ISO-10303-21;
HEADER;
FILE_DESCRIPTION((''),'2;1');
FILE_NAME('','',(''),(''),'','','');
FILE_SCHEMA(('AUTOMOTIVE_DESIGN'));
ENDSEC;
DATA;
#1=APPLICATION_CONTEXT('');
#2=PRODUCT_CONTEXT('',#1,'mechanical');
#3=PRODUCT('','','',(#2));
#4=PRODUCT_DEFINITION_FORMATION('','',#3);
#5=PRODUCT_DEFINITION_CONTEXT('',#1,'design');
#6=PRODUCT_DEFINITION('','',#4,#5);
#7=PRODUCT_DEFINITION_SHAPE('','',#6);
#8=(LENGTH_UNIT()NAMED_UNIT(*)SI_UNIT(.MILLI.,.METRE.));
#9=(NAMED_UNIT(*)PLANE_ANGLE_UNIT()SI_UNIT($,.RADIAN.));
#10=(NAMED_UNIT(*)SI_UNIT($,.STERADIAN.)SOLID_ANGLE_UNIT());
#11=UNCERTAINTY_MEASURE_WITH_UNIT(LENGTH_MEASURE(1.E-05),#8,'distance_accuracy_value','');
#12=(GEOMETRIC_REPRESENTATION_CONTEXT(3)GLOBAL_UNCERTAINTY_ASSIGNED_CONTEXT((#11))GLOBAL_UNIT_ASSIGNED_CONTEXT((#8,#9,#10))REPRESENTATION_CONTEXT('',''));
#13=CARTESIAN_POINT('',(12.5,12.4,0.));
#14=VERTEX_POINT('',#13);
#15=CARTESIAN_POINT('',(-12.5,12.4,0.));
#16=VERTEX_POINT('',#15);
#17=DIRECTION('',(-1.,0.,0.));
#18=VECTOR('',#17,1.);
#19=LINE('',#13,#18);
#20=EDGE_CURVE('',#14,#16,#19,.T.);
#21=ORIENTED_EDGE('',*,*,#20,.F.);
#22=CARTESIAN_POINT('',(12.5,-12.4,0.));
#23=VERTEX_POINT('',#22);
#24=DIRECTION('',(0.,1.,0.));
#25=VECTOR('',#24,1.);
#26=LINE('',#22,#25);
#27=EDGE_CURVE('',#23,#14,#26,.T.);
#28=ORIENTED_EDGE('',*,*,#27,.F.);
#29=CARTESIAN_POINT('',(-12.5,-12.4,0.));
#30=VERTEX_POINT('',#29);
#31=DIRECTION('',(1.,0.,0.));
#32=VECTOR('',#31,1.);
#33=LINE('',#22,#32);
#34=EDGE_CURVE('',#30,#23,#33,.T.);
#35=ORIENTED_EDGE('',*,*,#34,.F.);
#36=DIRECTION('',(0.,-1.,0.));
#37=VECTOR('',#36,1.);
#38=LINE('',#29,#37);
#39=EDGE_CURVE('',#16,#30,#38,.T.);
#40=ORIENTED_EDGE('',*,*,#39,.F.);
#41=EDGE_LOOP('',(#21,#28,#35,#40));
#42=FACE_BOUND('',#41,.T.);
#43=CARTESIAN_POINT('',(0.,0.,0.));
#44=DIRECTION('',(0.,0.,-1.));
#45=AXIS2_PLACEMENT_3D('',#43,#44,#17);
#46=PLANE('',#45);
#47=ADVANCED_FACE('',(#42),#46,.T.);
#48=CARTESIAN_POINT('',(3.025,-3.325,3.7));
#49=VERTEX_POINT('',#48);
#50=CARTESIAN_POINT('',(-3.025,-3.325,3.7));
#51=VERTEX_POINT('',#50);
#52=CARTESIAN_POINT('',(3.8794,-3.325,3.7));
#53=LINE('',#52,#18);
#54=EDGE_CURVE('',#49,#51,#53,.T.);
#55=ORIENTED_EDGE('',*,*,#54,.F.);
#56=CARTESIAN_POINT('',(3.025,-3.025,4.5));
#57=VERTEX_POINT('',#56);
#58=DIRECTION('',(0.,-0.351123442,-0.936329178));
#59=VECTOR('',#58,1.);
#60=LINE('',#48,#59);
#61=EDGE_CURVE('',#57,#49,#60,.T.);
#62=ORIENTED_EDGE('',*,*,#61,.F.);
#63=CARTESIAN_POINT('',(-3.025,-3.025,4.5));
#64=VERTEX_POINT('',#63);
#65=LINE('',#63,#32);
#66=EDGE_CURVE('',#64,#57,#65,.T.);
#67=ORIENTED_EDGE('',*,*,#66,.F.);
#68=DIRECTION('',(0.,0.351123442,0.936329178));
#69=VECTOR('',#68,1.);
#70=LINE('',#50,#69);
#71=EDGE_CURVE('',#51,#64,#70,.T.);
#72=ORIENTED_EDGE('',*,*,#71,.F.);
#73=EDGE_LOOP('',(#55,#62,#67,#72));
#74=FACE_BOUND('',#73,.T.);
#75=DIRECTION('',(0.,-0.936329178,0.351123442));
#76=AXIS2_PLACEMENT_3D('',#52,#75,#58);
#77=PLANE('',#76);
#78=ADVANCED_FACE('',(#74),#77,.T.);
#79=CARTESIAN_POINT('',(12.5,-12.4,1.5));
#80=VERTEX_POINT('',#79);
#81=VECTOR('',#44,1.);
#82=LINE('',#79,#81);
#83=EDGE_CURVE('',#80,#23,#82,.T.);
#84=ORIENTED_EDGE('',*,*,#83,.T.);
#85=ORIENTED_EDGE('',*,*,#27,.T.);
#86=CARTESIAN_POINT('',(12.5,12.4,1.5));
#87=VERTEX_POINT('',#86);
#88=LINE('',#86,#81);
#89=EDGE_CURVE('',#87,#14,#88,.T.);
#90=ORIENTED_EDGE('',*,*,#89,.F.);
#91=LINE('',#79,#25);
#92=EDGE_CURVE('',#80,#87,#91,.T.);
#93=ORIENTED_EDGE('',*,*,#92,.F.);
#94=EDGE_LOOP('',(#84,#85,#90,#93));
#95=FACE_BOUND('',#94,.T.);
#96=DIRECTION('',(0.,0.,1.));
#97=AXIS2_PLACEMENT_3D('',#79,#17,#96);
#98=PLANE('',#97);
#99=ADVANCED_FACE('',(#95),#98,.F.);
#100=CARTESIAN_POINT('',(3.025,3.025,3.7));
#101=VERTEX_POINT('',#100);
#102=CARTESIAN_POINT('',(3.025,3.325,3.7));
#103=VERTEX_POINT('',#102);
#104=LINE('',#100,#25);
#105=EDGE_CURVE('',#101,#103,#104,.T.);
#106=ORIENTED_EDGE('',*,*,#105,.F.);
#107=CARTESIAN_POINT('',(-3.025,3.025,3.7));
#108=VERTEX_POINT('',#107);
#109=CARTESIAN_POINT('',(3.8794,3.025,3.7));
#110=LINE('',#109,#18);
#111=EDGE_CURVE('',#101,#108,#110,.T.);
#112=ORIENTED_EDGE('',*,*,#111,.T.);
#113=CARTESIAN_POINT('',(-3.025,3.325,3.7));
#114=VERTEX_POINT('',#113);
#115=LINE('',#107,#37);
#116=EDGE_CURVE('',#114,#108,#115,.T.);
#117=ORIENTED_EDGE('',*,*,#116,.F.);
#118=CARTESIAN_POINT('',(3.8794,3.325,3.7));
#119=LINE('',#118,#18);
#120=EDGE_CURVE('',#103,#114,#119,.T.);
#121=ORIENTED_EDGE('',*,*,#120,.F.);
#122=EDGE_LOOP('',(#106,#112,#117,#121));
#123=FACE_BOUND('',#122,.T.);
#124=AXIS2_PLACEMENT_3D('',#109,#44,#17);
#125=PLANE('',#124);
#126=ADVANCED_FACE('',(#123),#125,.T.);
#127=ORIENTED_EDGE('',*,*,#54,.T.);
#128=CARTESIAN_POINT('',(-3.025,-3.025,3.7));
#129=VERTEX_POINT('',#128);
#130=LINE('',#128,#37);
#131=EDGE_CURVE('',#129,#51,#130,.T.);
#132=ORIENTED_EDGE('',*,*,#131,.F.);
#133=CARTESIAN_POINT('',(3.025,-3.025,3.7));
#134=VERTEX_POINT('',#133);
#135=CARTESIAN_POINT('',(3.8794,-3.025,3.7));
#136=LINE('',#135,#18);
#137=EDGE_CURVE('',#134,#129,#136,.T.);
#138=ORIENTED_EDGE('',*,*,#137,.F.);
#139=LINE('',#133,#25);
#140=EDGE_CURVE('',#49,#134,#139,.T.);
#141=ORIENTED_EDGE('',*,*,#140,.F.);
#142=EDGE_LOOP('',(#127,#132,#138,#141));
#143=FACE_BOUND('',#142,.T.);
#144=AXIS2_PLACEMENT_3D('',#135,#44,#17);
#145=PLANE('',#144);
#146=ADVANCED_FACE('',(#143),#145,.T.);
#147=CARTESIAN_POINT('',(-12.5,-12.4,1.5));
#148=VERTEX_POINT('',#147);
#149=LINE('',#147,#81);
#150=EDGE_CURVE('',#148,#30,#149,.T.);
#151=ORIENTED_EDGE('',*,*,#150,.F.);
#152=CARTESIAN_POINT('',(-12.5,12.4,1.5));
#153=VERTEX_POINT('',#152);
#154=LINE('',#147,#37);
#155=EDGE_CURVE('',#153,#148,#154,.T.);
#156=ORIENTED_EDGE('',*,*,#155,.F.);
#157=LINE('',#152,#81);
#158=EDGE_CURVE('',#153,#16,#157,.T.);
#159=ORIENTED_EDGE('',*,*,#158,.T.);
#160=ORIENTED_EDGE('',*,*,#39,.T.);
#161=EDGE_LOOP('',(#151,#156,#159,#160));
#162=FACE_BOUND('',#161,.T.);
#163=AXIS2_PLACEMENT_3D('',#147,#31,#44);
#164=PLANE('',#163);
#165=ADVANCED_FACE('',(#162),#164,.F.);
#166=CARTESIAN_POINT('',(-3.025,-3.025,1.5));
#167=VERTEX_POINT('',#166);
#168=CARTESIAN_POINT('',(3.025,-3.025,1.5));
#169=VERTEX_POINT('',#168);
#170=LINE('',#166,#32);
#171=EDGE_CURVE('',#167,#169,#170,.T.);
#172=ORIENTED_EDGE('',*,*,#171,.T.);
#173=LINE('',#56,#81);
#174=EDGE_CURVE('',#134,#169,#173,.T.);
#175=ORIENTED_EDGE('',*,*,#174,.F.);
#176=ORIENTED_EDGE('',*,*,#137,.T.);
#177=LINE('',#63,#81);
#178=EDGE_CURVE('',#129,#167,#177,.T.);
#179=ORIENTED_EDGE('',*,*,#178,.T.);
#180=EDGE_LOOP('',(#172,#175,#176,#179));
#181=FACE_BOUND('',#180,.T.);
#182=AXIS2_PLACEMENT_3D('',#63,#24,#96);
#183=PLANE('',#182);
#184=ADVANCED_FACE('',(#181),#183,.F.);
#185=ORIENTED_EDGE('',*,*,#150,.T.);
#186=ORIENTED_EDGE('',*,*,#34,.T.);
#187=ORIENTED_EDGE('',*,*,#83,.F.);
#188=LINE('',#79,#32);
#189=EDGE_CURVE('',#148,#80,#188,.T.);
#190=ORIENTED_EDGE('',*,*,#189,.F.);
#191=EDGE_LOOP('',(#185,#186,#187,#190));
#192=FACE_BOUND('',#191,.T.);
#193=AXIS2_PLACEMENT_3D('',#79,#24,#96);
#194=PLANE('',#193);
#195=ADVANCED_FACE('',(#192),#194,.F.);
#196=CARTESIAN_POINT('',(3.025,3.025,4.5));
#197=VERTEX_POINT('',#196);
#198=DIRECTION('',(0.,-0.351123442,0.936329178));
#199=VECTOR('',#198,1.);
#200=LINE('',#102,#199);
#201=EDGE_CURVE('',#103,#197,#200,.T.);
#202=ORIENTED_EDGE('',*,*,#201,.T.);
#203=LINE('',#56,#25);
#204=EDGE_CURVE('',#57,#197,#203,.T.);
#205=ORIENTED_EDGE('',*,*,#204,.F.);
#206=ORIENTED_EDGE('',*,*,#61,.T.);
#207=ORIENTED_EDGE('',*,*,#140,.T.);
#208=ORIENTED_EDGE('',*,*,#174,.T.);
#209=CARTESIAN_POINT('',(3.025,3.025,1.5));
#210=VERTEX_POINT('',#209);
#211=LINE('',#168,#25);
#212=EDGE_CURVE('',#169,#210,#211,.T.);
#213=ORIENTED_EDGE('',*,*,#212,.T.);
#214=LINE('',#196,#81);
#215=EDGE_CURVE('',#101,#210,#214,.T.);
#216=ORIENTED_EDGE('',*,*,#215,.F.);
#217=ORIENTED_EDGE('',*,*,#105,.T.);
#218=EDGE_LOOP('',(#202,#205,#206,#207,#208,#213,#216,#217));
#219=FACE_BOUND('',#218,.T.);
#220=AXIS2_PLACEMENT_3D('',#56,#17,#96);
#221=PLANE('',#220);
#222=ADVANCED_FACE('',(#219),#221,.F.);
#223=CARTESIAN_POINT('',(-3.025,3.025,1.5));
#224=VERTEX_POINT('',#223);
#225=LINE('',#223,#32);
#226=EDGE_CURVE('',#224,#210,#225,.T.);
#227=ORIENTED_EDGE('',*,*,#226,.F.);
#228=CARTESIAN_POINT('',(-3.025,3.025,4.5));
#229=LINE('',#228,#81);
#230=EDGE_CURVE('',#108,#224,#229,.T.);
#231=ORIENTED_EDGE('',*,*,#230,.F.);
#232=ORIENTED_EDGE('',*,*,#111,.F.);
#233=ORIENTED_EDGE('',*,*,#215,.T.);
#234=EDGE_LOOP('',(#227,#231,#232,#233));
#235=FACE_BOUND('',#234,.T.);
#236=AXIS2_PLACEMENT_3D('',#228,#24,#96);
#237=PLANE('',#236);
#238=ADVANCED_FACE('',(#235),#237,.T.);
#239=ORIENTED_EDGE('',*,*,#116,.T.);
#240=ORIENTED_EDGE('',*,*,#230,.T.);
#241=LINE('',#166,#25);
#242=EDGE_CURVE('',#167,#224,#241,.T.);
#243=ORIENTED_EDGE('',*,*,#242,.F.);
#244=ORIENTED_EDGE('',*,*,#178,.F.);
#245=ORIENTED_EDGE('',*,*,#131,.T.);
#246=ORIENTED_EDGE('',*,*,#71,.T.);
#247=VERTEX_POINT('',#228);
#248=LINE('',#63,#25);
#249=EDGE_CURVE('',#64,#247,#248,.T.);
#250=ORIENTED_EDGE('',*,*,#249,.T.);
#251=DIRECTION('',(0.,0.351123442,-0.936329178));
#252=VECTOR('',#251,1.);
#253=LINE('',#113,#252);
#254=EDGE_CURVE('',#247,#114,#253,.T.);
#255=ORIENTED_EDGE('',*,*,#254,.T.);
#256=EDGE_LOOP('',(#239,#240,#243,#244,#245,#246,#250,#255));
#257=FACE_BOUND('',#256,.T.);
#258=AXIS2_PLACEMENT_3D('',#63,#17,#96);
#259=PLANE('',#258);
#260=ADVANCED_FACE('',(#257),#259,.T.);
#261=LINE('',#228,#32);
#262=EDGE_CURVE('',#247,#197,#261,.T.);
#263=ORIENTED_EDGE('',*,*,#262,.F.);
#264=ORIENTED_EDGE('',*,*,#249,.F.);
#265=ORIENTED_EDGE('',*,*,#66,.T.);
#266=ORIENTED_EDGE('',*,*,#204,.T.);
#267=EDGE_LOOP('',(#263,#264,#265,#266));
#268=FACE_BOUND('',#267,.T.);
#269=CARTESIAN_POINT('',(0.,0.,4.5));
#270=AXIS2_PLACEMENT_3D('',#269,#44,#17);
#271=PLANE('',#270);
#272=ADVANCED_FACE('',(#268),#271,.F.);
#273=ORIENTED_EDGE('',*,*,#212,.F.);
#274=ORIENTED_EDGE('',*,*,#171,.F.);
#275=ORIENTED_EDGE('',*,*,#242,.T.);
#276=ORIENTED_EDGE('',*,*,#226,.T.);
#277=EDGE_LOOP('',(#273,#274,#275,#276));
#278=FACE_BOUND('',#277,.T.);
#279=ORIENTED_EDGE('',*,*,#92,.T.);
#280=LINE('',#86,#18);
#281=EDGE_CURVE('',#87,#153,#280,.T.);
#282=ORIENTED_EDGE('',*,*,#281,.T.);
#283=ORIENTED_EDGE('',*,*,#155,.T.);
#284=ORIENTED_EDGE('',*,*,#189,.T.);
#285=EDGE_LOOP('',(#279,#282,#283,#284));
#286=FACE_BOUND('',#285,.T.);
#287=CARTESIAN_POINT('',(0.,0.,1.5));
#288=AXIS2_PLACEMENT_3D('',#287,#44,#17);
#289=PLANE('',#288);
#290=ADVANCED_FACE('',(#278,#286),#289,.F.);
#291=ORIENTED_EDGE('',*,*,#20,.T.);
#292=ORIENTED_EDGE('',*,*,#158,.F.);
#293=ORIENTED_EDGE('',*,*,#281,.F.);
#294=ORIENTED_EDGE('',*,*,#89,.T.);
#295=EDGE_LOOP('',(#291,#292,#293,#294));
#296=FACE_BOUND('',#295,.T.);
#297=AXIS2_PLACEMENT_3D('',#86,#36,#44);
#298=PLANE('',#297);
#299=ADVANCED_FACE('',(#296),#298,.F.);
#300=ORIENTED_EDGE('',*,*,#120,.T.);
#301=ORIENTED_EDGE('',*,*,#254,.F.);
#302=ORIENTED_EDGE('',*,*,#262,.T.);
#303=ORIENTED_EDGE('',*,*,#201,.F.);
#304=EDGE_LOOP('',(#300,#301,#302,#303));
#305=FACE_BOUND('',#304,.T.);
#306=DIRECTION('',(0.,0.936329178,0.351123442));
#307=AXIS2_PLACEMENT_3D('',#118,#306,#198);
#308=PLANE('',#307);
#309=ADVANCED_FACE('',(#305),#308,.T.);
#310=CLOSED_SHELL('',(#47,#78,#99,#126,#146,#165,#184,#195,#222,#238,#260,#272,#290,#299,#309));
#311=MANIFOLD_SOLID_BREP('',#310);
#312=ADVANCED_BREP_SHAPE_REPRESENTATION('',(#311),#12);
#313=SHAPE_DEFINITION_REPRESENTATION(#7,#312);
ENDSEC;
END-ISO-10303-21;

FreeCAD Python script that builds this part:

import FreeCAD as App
import Part
import Sketcher

V = App.Vector

doc = App.newDocument("Part")
body = doc.addObject("PartDesign::Body", "Body")

# Sketch on XY plane
sketch1 = body.newObject("Sketcher::SketchObject", "Sketch")
sketch1.AttachmentSupport = (doc.getObject("XY_Plane"), [""])
sketch1.MapMode = "FlatFace"
sketch1.addGeometry(Part.LineSegment(V(-12, -12, 0), V(12, -12, 0)), False)
sketch1.addGeometry(Part.LineSegment(V(12, -12, 0), V(12, 12, 0)), False)
sketch1.addGeometry(Part.LineSegment(V(12, 12, 0), V(-12, 12, 0)), False)
sketch1.addGeometry(Part.LineSegment(V(-12, 12, 0), V(-12, -12, 0)), False)
sketch1.addConstraint(Sketcher.Constraint("Coincident", 0, 2, 1, 1))
sketch1.addConstraint(Sketcher.Constraint("Coincident", 1, 2, 2, 1))
sketch1.addConstraint(Sketcher.Constraint("Coincident", 2, 2, 3, 1))
sketch1.addConstraint(Sketcher.Constraint("Coincident", 3, 2, 0, 1))
sketch1.addConstraint(Sketcher.Constraint("Horizontal", 0))
sketch1.addConstraint(Sketcher.Constraint("Vertical", 1))
sketch1.addConstraint(Sketcher.Constraint("Horizontal", 2))
sketch1.addConstraint(Sketcher.Constraint("Vertical", 3))
sketch1.addConstraint(Sketcher.Constraint("Symmetric", 0, 2, 2, 2, -1, 1))
sketch1.addConstraint(Sketcher.Constraint("DistanceX", 0, 1, 0, 2, 25.0))
sketch1.addConstraint(Sketcher.Constraint("DistanceY", 1, 1, 1, 2, 24.8))
pad1 = body.newObject("PartDesign::Pad", "Pad")
pad1.Profile = sketch1
pad1.Length = 1.5

# Sketch on XY plane
sketch2 = body.newObject("Sketcher::SketchObject", "Sketch001")
sketch2.AttachmentSupport = (doc.getObject("XY_Plane"), [""])
sketch2.MapMode = "FlatFace"
sketch2.AttachmentOffset = App.Placement(V(0, 0, 1.5), App.Rotation())
sketch2.addGeometry(Part.LineSegment(V(-3, 3, 0), V(-3, -3, 0)), False)
sketch2.addGeometry(Part.LineSegment(V(-3, -3, 0), V(3, -3, 0)), False)
sketch2.addGeometry(Part.LineSegment(V(3, -3, 0), V(3, 3, 0)), False)
sketch2.addGeometry(Part.LineSegment(V(3, 3, 0), V(-3, 3, 0)), False)
sketch2.addConstraint(Sketcher.Constraint("Coincident", 0, 2, 1, 1))
sketch2.addConstraint(Sketcher.Constraint("Coincident", 1, 2, 2, 1))
sketch2.addConstraint(Sketcher.Constraint("Coincident", 2, 2, 3, 1))
sketch2.addConstraint(Sketcher.Constraint("Coincident", 3, 2, 0, 1))
sketch2.addConstraint(Sketcher.Constraint("Vertical", 0))
sketch2.addConstraint(Sketcher.Constraint("Horizontal", 1))
sketch2.addConstraint(Sketcher.Constraint("Vertical", 2))
sketch2.addConstraint(Sketcher.Constraint("Horizontal", 3))
sketch2.addConstraint(Sketcher.Constraint("Symmetric", 0, 2, 2, 2, -1, 1))
sketch2.addConstraint(Sketcher.Constraint("Equal", 3, 0))
sketch2.addConstraint(Sketcher.Constraint("DistanceX", 1, 1, 1, 2, 6.05))
pad2 = body.newObject("PartDesign::Pad", "Pad001")
pad2.Profile = sketch2
pad2.Length = 3

# Sketch on YZ plane
sketch3 = body.newObject("Sketcher::SketchObject", "Sketch002")
sketch3.AttachmentSupport = (doc.getObject("YZ_Plane"), [""])
sketch3.MapMode = "FlatFace"
sketch3.AttachmentOffset = App.Placement(V(0, 0, -3.025), App.Rotation())
sketch3.addGeometry(Part.LineSegment(V(3.02, 3.7, 0), V(3.02, 4.5, 0)), False)
sketch3.addGeometry(Part.LineSegment(V(3.02, 4.5, 0), V(3.33, 3.7, 0)), False)
sketch3.addGeometry(Part.LineSegment(V(3.33, 3.7, 0), V(3.02, 3.7, 0)), False)
sketch3.addGeometry(Part.LineSegment(V(-3.33, 3.7, 0), V(-3.02, 4.5, 0)), False)
sketch3.addGeometry(Part.LineSegment(V(-3.02, 4.5, 0), V(-3.02, 3.7, 0)), False)
sketch3.addGeometry(Part.LineSegment(V(-3.02, 3.7, 0), V(-3.33, 3.7, 0)), False)
sketch3.addConstraint(Sketcher.Constraint("Coincident", 0, 2, 1, 1))
sketch3.addConstraint(Sketcher.Constraint("Coincident", 1, 2, 2, 1))
sketch3.addConstraint(Sketcher.Constraint("Coincident", 2, 2, 0, 1))
sketch3.addConstraint(Sketcher.Constraint("Coincident", 3, 2, 4, 1))
sketch3.addConstraint(Sketcher.Constraint("Coincident", 4, 2, 5, 1))
sketch3.addConstraint(Sketcher.Constraint("Coincident", 5, 2, 3, 1))
sketch3.addConstraint(Sketcher.Constraint("Vertical", 0))
sketch3.addConstraint(Sketcher.Constraint("Horizontal", 2))
sketch3.addConstraint(Sketcher.Constraint("Vertical", 4))
sketch3.addConstraint(Sketcher.Constraint("Horizontal", 5))
sketch3.addConstraint(Sketcher.Constraint("Symmetric", 0, 2, 3, 2, -2))
sketch3.addConstraint(Sketcher.Constraint("Symmetric", 1, 2, 5, 2, -2))
sketch3.addConstraint(Sketcher.Constraint("DistanceX", 2, 2, 2, 1, 0.3))
sketch3.addConstraint(Sketcher.Constraint("DistanceY", 0, 1, 0, 2, 0.8))
sketch3.addConstraint(Sketcher.Constraint("DistanceY", -1, 1, 0, 2, 4.5))
sketch3.addConstraint(Sketcher.Constraint("DistanceX", 3, 2, 0, 2, 6.05))
pad3 = body.newObject("PartDesign::Pad", "Pad002")
pad3.Profile = sketch3
pad3.Length = 6.05

doc.recompute()
